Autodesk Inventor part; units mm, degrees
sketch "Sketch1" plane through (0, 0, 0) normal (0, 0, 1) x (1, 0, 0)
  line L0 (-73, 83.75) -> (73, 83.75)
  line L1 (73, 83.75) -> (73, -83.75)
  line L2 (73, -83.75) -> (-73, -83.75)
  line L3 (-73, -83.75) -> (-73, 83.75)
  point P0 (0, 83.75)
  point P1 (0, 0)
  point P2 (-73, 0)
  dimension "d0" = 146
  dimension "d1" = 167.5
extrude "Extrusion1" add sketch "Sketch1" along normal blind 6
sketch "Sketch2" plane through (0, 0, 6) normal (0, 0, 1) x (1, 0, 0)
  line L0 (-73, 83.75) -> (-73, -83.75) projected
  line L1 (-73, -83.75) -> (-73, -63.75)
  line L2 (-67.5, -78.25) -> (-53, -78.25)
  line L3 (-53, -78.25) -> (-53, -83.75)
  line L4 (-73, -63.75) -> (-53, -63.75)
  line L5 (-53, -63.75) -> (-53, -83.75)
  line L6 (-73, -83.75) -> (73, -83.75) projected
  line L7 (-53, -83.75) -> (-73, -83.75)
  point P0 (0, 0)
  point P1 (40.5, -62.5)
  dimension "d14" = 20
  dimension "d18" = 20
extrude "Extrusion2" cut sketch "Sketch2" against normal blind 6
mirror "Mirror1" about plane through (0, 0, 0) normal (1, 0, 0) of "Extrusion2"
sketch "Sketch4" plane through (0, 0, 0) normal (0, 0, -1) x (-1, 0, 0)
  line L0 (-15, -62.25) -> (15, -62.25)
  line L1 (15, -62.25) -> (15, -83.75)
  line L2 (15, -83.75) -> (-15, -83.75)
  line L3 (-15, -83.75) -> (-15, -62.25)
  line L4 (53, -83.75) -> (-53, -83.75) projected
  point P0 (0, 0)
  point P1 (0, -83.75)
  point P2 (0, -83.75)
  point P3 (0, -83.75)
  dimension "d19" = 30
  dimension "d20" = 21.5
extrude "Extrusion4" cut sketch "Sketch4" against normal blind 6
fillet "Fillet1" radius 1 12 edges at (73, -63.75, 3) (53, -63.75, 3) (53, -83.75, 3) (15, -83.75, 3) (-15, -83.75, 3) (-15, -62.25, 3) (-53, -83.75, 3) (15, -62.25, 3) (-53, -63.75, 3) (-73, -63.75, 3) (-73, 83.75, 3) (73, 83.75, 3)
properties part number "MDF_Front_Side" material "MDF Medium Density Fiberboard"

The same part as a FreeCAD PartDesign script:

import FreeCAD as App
import Part
import Sketcher

V = App.Vector
Q = App.Units.Quantity


def edges_at(feature, points):
    """Names of the edges that pass closest to the given points."""
    edges = feature.Shape.Edges
    near = lambda p: min(range(len(edges)), key=lambda i: edges[i].distToShape(Part.Vertex(*p))[0])
    return sorted({f"Edge{near(p) + 1}" for p in points})

doc = App.newDocument("Part")
body = doc.addObject("PartDesign::Body", "Body")

sketch1 = body.newObject("Sketcher::SketchObject", "Sketch")
sketch1.AttachmentSupport = (doc.getObject("XY_Plane"), [""])
sketch1.MapMode = "FlatFace"
sketch1.addGeometry([
    Part.LineSegment(V(73, 84, 0), V(-73, 84, 0)),
    Part.LineSegment(V(-73, 84, 0), V(-73, -84, 0)),
    Part.LineSegment(V(-73, -84, 0), V(73, -84, 0)),
    Part.LineSegment(V(73, -84, 0), V(73, 84, 0)),
], False)
sketch1.addConstraint([
    Sketcher.Constraint("Coincident", 0, 2, 1, 1),
    Sketcher.Constraint("Coincident", 1, 2, 2, 1),
    Sketcher.Constraint("Coincident", 2, 2, 3, 1),
    Sketcher.Constraint("Coincident", 3, 2, 0, 1),
    Sketcher.Constraint("Horizontal", 0),
    Sketcher.Constraint("Vertical", 1),
    Sketcher.Constraint("Horizontal", 2),
    Sketcher.Constraint("Vertical", 3),
    Sketcher.Constraint("Symmetric", 0, 2, 2, 2, -1, 1),
    Sketcher.Constraint("DistanceX", 0, 2, 0, 1, Q("146 mm")),
    Sketcher.Constraint("DistanceY", 1, 2, 1, 1, Q("167.5 mm")),
])
pad1 = body.newObject("PartDesign::Pad", "Pad")
pad1.Profile = sketch1
pad1.Length = 6

sketch2 = body.newObject("Sketcher::SketchObject", "Sketch001")
sketch2.AttachmentSupport = (doc.getObject("XY_Plane"), [""])
sketch2.MapMode = "FlatFace"
sketch2.AttachmentOffset = App.Placement(V(0, 0, 6), App.Rotation())
sketch2.addGeometry([
    Part.LineSegment(V(-53, -64, 0), V(-73, -64, 0)),
    Part.LineSegment(V(-73, -64, 0), V(-73, -84, 0)),
    Part.LineSegment(V(-73, -84, 0), V(-53, -84, 0)),
    Part.LineSegment(V(-53, -84, 0), V(-53, -64, 0)),
], False)
sketch2.addConstraint([
    Sketcher.Constraint("Coincident", 0, 2, 1, 1),
    Sketcher.Constraint("Coincident", 1, 2, 2, 1),
    Sketcher.Constraint("Coincident", 2, 2, 3, 1),
    Sketcher.Constraint("Coincident", 3, 2, 0, 1),
    Sketcher.Constraint("Horizontal", 0),
    Sketcher.Constraint("Vertical", 1),
    Sketcher.Constraint("Horizontal", 2),
    Sketcher.Constraint("Vertical", 3),
    Sketcher.Constraint("Equal", 2, 1),
    Sketcher.Constraint("DistanceX", 0, 2, 0, 1, Q("20 mm")),
    Sketcher.Constraint("DistanceX", 0, 2, -1, 1, Q("73 mm")),
    Sketcher.Constraint("DistanceY", 0, 2, -1, 1, Q("63.75 mm")),
])
pocket1 = body.newObject("PartDesign::Pocket", "Pocket")
pocket1.Profile = sketch2
pocket1.Length = 6
doc.recompute()

mirrored = body.newObject("PartDesign::Mirrored", "Mirrored")
mirrored.Originals = [pocket1]
mirrored.MirrorPlane = (doc.getObject("YZ_Plane"), [""])
body.Tip = mirrored

sketch3 = body.newObject("Sketcher::SketchObject", "Sketch002")
sketch3.AttachmentSupport = (doc.getObject("XY_Plane"), [""])
sketch3.MapMode = "FlatFace"
sketch3.addGeometry([
    Part.LineSegment(V(-15, -62, 0), V(15, -62, 0)),
    Part.LineSegment(V(15, -62, 0), V(15, -84, 0)),
    Part.LineSegment(V(15, -84, 0), V(-15, -84, 0)),
    Part.LineSegment(V(-15, -84, 0), V(-15, -62, 0)),
], False)
sketch3.addConstraint([
    Sketcher.Constraint("Coincident", 0, 2, 1, 1),
    Sketcher.Constraint("Coincident", 1, 2, 2, 1),
    Sketcher.Constraint("Coincident", 2, 2, 3, 1),
    Sketcher.Constraint("Coincident", 3, 2, 0, 1),
    Sketcher.Constraint("Horizontal", 0),
    Sketcher.Constraint("Vertical", 1),
    Sketcher.Constraint("Horizontal", 2),
    Sketcher.Constraint("Vertical", 3),
    Sketcher.Constraint("DistanceX", 0, 1, 0, 2, Q("30 mm")),
    Sketcher.Constraint("DistanceY", 1, 2, 1, 1, Q("21.5 mm")),
    Sketcher.Constraint("DistanceX", -1, 1, 0, 2, Q("15 mm")),
    Sketcher.Constraint("DistanceY", 0, 2, -1, 1, Q("62.25 mm")),
])
pocket2 = body.newObject("PartDesign::Pocket", "Pocket001")
pocket2.Profile = sketch3
pocket2.Length = 6
pocket2.Reversed = True
doc.recompute()

fillet = body.newObject("PartDesign::Fillet", "Fillet")
fillet.Base = (pocket2, edges_at(pocket2, [
    (73, -63.75, 3),
    (53, -63.75, 3),
    (53, -83.75, 3),
    (15, -83.75, 3),
    (-15, -83.75, 3),
    (-15, -62.25, 3),
    (-53, -83.75, 3),
    (15, -62.25, 3),
    (-53, -63.75, 3),
    (-73, -63.75, 3),
    (-73, 83.75, 3),
    (73, 83.75, 3),
]))
fillet.Radius = 1

doc.recompute()
